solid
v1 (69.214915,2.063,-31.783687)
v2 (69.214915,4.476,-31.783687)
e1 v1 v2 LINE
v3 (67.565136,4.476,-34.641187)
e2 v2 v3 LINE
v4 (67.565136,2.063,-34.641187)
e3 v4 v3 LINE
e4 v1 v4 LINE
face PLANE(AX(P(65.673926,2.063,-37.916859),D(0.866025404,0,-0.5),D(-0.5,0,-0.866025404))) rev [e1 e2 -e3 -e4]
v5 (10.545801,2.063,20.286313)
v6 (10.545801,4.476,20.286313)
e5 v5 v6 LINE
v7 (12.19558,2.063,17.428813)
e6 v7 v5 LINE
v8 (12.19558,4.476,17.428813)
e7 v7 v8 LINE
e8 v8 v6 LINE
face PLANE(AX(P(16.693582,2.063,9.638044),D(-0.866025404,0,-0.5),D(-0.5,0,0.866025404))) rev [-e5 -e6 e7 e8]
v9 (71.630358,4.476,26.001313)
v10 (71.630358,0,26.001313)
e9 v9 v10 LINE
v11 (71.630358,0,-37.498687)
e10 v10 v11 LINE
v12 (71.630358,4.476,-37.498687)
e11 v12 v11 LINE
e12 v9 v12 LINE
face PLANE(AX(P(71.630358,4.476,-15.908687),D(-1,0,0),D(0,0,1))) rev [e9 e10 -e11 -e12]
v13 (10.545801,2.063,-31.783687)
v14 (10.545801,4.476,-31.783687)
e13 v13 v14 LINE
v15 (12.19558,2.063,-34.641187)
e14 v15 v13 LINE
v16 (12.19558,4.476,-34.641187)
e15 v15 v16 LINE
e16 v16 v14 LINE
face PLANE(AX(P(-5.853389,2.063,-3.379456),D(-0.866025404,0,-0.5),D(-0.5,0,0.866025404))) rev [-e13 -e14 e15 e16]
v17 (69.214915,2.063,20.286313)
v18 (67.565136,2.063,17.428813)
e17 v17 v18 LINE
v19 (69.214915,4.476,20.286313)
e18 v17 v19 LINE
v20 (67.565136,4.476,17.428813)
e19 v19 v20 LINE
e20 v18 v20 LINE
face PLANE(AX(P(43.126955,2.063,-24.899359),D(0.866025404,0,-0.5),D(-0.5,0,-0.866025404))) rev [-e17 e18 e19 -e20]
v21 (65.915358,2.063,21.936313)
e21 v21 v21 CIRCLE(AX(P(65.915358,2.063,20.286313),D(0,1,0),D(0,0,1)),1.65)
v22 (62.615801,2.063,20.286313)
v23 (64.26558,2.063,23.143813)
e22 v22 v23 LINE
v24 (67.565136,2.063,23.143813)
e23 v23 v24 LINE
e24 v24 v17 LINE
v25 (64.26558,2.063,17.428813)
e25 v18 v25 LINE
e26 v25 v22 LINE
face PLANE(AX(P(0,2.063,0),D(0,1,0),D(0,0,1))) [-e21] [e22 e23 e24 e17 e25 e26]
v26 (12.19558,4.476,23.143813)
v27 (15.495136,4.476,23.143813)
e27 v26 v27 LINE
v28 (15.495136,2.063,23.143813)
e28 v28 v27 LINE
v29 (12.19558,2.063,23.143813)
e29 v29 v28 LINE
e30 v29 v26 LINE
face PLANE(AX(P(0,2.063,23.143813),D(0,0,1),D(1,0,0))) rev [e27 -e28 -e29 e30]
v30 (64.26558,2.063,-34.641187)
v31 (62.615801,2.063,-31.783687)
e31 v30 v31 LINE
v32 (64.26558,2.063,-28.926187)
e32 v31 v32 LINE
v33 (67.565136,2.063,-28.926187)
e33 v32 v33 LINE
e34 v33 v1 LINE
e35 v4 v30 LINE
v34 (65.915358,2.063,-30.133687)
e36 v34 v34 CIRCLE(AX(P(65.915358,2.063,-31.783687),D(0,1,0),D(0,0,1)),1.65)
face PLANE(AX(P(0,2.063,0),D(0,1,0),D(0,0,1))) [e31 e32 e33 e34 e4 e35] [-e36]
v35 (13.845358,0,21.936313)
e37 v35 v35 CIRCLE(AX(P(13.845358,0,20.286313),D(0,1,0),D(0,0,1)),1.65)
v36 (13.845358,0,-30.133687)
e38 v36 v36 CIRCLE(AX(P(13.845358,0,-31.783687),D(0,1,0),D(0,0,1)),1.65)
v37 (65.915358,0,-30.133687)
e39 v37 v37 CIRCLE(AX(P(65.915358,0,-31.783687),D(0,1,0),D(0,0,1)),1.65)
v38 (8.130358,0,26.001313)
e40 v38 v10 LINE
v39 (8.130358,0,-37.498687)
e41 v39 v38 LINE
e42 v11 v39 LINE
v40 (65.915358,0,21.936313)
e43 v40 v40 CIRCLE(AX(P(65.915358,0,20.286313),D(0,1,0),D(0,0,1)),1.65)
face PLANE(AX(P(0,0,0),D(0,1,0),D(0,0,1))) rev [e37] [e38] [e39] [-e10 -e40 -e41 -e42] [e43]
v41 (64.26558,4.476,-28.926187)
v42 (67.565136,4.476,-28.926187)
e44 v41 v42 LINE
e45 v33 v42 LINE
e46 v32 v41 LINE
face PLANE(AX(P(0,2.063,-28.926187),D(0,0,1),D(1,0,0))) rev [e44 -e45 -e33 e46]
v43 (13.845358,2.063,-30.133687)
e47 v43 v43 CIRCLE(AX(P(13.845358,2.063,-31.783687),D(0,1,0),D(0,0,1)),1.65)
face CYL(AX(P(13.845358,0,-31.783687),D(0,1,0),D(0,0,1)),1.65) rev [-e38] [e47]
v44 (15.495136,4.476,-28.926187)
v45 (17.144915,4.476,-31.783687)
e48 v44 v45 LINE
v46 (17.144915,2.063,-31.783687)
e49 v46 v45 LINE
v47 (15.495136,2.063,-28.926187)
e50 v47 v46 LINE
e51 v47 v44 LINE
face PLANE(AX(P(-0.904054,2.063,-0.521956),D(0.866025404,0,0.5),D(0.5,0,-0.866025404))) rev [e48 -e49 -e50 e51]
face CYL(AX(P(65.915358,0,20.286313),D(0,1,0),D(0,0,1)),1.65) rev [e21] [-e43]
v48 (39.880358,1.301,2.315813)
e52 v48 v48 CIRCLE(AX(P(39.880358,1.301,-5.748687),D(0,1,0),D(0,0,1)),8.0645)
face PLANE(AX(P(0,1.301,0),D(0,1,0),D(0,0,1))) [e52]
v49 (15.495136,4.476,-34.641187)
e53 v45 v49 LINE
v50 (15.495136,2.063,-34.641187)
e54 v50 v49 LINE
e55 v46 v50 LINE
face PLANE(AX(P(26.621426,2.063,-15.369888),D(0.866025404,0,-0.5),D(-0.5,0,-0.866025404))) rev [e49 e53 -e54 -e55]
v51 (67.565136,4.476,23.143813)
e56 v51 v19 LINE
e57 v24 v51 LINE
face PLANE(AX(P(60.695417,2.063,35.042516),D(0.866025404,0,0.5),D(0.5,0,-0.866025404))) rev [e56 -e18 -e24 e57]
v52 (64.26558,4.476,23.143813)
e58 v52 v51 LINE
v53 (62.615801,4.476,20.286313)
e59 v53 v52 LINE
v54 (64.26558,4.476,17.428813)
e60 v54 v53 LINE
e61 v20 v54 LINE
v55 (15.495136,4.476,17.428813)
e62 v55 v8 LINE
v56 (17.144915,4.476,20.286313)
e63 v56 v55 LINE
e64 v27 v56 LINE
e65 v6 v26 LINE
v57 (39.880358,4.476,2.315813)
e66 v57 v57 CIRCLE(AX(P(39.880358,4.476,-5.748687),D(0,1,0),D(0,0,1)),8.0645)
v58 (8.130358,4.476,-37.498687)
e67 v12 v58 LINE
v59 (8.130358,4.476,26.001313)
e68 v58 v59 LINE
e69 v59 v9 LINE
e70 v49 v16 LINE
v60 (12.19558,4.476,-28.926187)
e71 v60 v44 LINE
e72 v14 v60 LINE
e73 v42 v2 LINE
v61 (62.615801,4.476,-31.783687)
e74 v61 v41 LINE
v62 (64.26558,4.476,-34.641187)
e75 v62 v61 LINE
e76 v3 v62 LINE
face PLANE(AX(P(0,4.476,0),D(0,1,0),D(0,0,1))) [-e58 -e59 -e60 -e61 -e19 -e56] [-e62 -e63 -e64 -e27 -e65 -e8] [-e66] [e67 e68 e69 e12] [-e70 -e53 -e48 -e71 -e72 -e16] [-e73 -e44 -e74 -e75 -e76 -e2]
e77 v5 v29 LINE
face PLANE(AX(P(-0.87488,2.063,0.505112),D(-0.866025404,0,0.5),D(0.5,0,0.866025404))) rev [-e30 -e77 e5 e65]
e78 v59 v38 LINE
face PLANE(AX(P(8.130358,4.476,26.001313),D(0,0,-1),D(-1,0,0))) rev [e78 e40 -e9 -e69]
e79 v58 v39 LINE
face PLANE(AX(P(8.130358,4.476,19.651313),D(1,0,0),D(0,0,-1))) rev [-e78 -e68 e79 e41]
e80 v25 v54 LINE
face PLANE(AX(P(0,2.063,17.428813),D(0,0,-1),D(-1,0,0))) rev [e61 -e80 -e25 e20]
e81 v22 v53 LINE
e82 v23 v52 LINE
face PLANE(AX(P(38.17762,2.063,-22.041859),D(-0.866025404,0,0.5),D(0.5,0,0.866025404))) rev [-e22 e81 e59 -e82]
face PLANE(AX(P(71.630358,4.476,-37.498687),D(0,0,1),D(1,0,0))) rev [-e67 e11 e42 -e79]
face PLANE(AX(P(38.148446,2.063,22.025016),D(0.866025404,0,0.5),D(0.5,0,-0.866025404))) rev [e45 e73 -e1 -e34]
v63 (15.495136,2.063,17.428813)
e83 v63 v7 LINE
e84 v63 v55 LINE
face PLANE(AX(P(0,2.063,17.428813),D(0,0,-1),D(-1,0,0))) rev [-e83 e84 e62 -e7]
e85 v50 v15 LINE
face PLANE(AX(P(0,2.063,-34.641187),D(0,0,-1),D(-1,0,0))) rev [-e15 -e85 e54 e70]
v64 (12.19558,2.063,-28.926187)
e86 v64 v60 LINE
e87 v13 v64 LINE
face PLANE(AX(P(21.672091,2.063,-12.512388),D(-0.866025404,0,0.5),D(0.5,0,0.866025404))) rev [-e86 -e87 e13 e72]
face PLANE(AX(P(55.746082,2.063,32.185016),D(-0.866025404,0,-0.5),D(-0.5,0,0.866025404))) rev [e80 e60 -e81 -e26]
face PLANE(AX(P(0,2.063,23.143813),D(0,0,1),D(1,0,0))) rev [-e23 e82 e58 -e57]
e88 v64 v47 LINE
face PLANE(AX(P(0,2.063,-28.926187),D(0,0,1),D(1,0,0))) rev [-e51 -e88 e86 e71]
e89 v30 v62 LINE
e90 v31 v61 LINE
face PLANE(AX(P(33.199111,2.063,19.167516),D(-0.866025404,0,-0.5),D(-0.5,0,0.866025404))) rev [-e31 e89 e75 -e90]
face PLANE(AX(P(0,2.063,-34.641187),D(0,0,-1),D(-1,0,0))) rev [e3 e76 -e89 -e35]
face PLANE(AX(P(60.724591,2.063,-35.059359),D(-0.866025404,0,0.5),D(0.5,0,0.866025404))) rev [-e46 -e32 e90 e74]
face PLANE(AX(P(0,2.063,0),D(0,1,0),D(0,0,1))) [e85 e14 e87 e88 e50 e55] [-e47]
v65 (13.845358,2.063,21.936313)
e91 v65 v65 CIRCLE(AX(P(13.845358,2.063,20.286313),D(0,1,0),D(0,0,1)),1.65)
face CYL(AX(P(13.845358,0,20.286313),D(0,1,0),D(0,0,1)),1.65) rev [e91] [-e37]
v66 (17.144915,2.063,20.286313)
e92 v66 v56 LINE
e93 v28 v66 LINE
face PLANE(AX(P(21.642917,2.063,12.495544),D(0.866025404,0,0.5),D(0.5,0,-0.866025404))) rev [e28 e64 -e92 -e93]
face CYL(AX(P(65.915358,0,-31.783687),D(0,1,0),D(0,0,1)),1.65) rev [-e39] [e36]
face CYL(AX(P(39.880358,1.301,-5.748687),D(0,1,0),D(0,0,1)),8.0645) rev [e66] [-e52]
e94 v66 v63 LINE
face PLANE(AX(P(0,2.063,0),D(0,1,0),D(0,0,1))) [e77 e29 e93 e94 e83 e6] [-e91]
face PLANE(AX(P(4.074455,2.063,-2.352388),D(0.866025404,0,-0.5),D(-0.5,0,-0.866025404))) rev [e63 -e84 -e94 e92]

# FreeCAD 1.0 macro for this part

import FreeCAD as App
import Part
import Sketcher
from FreeCAD import Vector
Q = App.Units.Quantity


def add_polygon(sketch, points):
    """Adds a closed chain of lines whose ends are joined by coincident constraints."""
    first, n = sketch.GeometryCount, len(points)
    for a, b in zip(points, points[1:] + points[:1]):
        sketch.addGeometry(Part.LineSegment(App.Vector(*a, 0), App.Vector(*b, 0)), False)
    for i in range(n):
        sketch.addConstraint(Sketcher.Constraint("Coincident", first + i, 2, first + (i + 1) % n, 1))

doc = App.newDocument("Part")
body = doc.addObject("PartDesign::Body", "Body")

sketch1 = body.newObject("Sketcher::SketchObject", "Sketch")
sketch1.AttachmentSupport = (doc.getObject("XZ_Plane"), [""])
sketch1.MapMode = "FlatFace"
add_polygon(sketch1, [(8, 26), (72, 26), (72, -37), (8, -37)])
sketch1.addConstraint(Sketcher.Constraint("Horizontal", 0))
sketch1.addConstraint(Sketcher.Constraint("Vertical", 1))
sketch1.addConstraint(Sketcher.Constraint("Horizontal", 2))
sketch1.addConstraint(Sketcher.Constraint("Vertical", 3))
sketch1.addConstraint(Sketcher.Constraint("Equal", 2, 1))
sketch1.addConstraint(Sketcher.Constraint("DistanceX", 0, 1, 0, 2, Q("2.5 in")))
sketch1.addConstraint(Sketcher.Constraint("DistanceX", -1, 1, 0, 2, 71.630358))
sketch1.addConstraint(Sketcher.Constraint("DistanceY", -1, 1, 0, 2, 26.001313))
pad1 = body.newObject("PartDesign::Pad", "Pad")
pad1.Profile = sketch1
pad1.Length = 4.476
pad1.Reversed = True

sketch2 = body.newObject("Sketcher::SketchObject", "Sketch001")
sketch2.AttachmentSupport = (doc.getObject("XZ_Plane"), [""])
sketch2.MapMode = "FlatFace"
sketch2.AttachmentOffset = App.Placement(Vector(0, 0, -4.476), App.Rotation())
add_polygon(sketch2, [(64.3, -28.9), (67.6, -28.9), (69.2, -31.8), (67.6, -34.6), (64.3, -34.6), (62.6, -31.8)])
add_polygon(sketch2, [(17.1, -31.8), (15.5, -34.6), (12.2, -34.6), (10.5, -31.8), (12.2, -28.9), (15.5, -28.9)])
add_polygon(sketch2, [(64.3, 23.1), (67.6, 23.1), (69.2, 20.3), (67.6, 17.4), (64.3, 17.4), (62.6, 20.3)])
add_polygon(sketch2, [(12.2, 23.1), (15.5, 23.1), (17.1, 20.3), (15.5, 17.4), (12.2, 17.4), (10.5, 20.3)])
sketch2.addConstraint(Sketcher.Constraint("Horizontal", 0))
sketch2.addConstraint(Sketcher.Constraint("Horizontal", 3))
sketch2.addConstraint(Sketcher.Constraint("Horizontal", 7))
sketch2.addConstraint(Sketcher.Constraint("Horizontal", 10))
sketch2.addConstraint(Sketcher.Constraint("Horizontal", 12))
sketch2.addConstraint(Sketcher.Constraint("Horizontal", 15))
sketch2.addConstraint(Sketcher.Constraint("Horizontal", 18))
sketch2.addConstraint(Sketcher.Constraint("Horizontal", 21))
sketch2.addConstraint(Sketcher.Constraint("Parallel", 1, 4))
sketch2.addConstraint(Sketcher.Constraint("Parallel", 2, 5))
sketch2.addConstraint(Sketcher.Constraint("Parallel", 5, 6))
sketch2.addConstraint(Sketcher.Constraint("Parallel", 4, 8))
sketch2.addConstraint(Sketcher.Constraint("Parallel", 6, 9))
sketch2.addConstraint(Sketcher.Constraint("Parallel", 8, 11))
sketch2.addConstraint(Sketcher.Constraint("Parallel", 11, 13))
sketch2.addConstraint(Sketcher.Constraint("Parallel", 9, 14))
sketch2.addConstraint(Sketcher.Constraint("Parallel", 13, 16))
sketch2.addConstraint(Sketcher.Constraint("Parallel", 14, 17))
sketch2.addConstraint(Sketcher.Constraint("Parallel", 16, 19))
sketch2.addConstraint(Sketcher.Constraint("Parallel", 17, 20))
sketch2.addConstraint(Sketcher.Constraint("Parallel", 19, 22))
sketch2.addConstraint(Sketcher.Constraint("Parallel", 20, 23))
sketch2.addConstraint(Sketcher.Constraint("Horizontal", 1, 2, 4, 2))
sketch2.addConstraint(Sketcher.Constraint("Horizontal", 3, 2, 6, 2))
sketch2.addConstraint(Sketcher.Constraint("Horizontal", 4, 2, 8, 2))
sketch2.addConstraint(Sketcher.Constraint("Horizontal", 5, 2, 9, 2))
sketch2.addConstraint(Sketcher.Constraint("Horizontal", 8, 2, 11, 2))
sketch2.addConstraint(Sketcher.Constraint("Horizontal", 13, 2, 16, 2))
sketch2.addConstraint(Sketcher.Constraint("Horizontal", 17, 2, 18, 2))
sketch2.addConstraint(Sketcher.Constraint("Horizontal", 16, 2, 19, 2))
sketch2.addConstraint(Sketcher.Constraint("Horizontal", 15, 2, 20, 2))
sketch2.addConstraint(Sketcher.Constraint("Horizontal", 19, 2, 22, 2))
sketch2.addConstraint(Sketcher.Constraint("Vertical", 0, 2, 2, 2))
sketch2.addConstraint(Sketcher.Constraint("Vertical", 3, 2, 5, 2))
sketch2.addConstraint(Sketcher.Constraint("Vertical", 2, 2, 12, 2))
sketch2.addConstraint(Sketcher.Constraint("Vertical", 1, 2, 13, 2))
sketch2.addConstraint(Sketcher.Constraint("Vertical", 12, 2, 14, 2))
sketch2.addConstraint(Sketcher.Constraint("Vertical", 5, 2, 15, 2))
sketch2.addConstraint(Sketcher.Constraint("Vertical", 10, 2, 18, 2))
sketch2.addConstraint(Sketcher.Constraint("Vertical", 9, 2, 21, 2))
sketch2.addConstraint(Sketcher.Constraint("Equal", 3, 7))
sketch2.addConstraint(Sketcher.Constraint("Angle", 1, Q("-60 deg")))
sketch2.addConstraint(Sketcher.Constraint("DistanceX", 6, 2, 2, 2, Q("2.05 in")))
sketch2.addConstraint(Sketcher.Constraint("DistanceY", 0, 2, 12, 2, Q("2.05 in")))
sketch2.addConstraint(Sketcher.Constraint("DistanceY", 2, 2, 0, 2, Q("0.225 in")))
sketch2.addConstraint(Sketcher.Constraint("DistanceX", -1, 1, 4, 2, 62.615801))
sketch2.addConstraint(Sketcher.Constraint("DistanceX", 0, 1, 0, 2, 3.299557))
sketch2.addConstraint(Sketcher.Constraint("DistanceY", 0, 2, -1, 1, 28.926187))
pocket1 = body.newObject("PartDesign::Pocket", "Pocket")
pocket1.Profile = sketch2
pocket1.Length = Q("0.095 in")
pocket1.Reversed = True

sketch3 = body.newObject("Sketcher::SketchObject", "Sketch002")
sketch3.AttachmentSupport = (doc.getObject("XZ_Plane"), [""])
sketch3.MapMode = "FlatFace"
sketch3.AttachmentOffset = App.Placement(Vector(0, 0, -4.476), App.Rotation())
sketch3.addGeometry(Part.Circle(Vector(65.9, -31.8, 0), Vector(0, 0, 1), 1.6), False)
sketch3.addGeometry(Part.Circle(Vector(13.8, -31.8, 0), Vector(0, 0, 1), 1.6), False)
sketch3.addGeometry(Part.Circle(Vector(65.9, 20.3, 0), Vector(0, 0, 1), 1.6), False)
sketch3.addGeometry(Part.Circle(Vector(13.8, 20.3, 0), Vector(0, 0, 1), 1.6), False)
sketch3.addConstraint(Sketcher.Constraint("Equal", 0, 1))
sketch3.addConstraint(Sketcher.Constraint("Equal", 1, 2))
sketch3.addConstraint(Sketcher.Constraint("Equal", 2, 3))
sketch3.addConstraint(Sketcher.Constraint("Horizontal", 0, 3, 1, 3))
sketch3.addConstraint(Sketcher.Constraint("Horizontal", 2, 3, 3, 3))
sketch3.addConstraint(Sketcher.Constraint("Vertical", 0, 3, 2, 3))
sketch3.addConstraint(Sketcher.Constraint("Vertical", 1, 3, 3, 3))
sketch3.addConstraint(Sketcher.Constraint("Diameter", 0, 3.3))
sketch3.addConstraint(Sketcher.Constraint("DistanceX", 1, 3, 0, 3, Q("2.05 in")))
sketch3.addConstraint(Sketcher.Constraint("DistanceY", 0, 3, 2, 3, Q("2.05 in")))
sketch3.addConstraint(Sketcher.Constraint("DistanceX", -1, 1, 0, 3, 65.915358))
sketch3.addConstraint(Sketcher.Constraint("DistanceY", 0, 3, -1, 1, 31.783687))
pocket2 = body.newObject("PartDesign::Pocket", "Pocket001")
pocket2.Profile = sketch3
pocket2.Type = "ThroughAll"
pocket2.Reversed = True

sketch4 = body.newObject("Sketcher::SketchObject", "Sketch003")
sketch4.AttachmentSupport = (doc.getObject("XZ_Plane"), [""])
sketch4.MapMode = "FlatFace"
sketch4.AttachmentOffset = App.Placement(Vector(0, 0, -4.476), App.Rotation())
sketch4.addGeometry(Part.Circle(Vector(40, -6, 0), Vector(0, 0, 1), 8), False)
sketch4.addConstraint(Sketcher.Constraint("Diameter", 0, Q("0.635 in")))
sketch4.addConstraint(Sketcher.Constraint("DistanceX", -1, 1, 0, 3, 39.880358))
sketch4.addConstraint(Sketcher.Constraint("DistanceY", 0, 3, -1, 1, 5.748687))
pocket3 = body.newObject("PartDesign::Pocket", "Pocket002")
pocket3.Profile = sketch4
pocket3.Length = Q("0.125 in")
pocket3.Reversed = True

doc.recompute()
